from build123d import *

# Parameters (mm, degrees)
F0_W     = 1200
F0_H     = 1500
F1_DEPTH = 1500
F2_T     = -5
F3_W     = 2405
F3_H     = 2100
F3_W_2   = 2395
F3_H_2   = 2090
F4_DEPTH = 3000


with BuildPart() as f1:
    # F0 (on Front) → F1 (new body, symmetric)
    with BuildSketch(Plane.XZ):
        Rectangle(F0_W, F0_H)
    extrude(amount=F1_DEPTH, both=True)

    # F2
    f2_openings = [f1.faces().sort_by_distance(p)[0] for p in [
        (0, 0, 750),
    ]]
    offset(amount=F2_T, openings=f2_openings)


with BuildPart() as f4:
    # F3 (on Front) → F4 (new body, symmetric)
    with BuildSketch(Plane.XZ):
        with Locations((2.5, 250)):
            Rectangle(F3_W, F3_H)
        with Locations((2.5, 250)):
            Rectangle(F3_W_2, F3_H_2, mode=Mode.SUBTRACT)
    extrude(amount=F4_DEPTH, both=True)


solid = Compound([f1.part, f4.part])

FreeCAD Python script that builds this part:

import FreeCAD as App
import Part
import Sketcher

V = App.Vector
Q = App.Units.Quantity


def faces_at(feature, points):
    """Names of the faces that lie closest to the given points."""
    faces = feature.Shape.Faces
    near = lambda p: min(range(len(faces)), key=lambda i: faces[i].distToShape(Part.Vertex(*p))[0])
    return sorted({f"Face{near(p) + 1}" for p in points})

doc = App.newDocument("Part")
body = doc.addObject("PartDesign::Body", "Body")

# Sketch on XZ plane
sketch1 = doc.addObject("Sketcher::SketchObject", "Sketch")
body.addObject(sketch1)
sketch1.AttachmentSupport = (doc.XZ_Plane, [""])
sketch1.MapMode = "FlatFace"
sketch1.addGeometry(Part.LineSegment(V(-600, 750, 0), V(-600, -750, 0)), False)
sketch1.addGeometry(Part.LineSegment(V(-600, -750, 0), V(600, -750, 0)), False)
sketch1.addGeometry(Part.LineSegment(V(600, -750, 0), V(600, 750, 0)), False)
sketch1.addGeometry(Part.LineSegment(V(600, 750, 0), V(-600, 750, 0)), False)
sketch1.addConstraint(Sketcher.Constraint("Coincident", 0, 2, 1, 1))
sketch1.addConstraint(Sketcher.Constraint("Coincident", 1, 2, 2, 1))
sketch1.addConstraint(Sketcher.Constraint("Coincident", 2, 2, 3, 1))
sketch1.addConstraint(Sketcher.Constraint("Coincident", 3, 2, 0, 1))
sketch1.addConstraint(Sketcher.Constraint("Vertical", 0))
sketch1.addConstraint(Sketcher.Constraint("Horizontal", 1))
sketch1.addConstraint(Sketcher.Constraint("Vertical", 2))
sketch1.addConstraint(Sketcher.Constraint("Horizontal", 3))
sketch1.addConstraint(Sketcher.Constraint("Symmetric", 0, 2, 2, 2, -1, 1))
sketch1.addConstraint(Sketcher.Constraint("DistanceX", 1, 1, 1, 2, Q("1200 mm")))
sketch1.addConstraint(Sketcher.Constraint("DistanceY", 0, 2, 0, 1, Q("1500 mm")))
pad1 = doc.addObject("PartDesign::Pad", "Pad")
body.addObject(pad1)
pad1.Profile = sketch1
pad1.Length = 3000
pad1.Midplane = True
doc.recompute()

thickness = doc.addObject("PartDesign::Thickness", "Thickness")
body.addObject(thickness)
thickness.Base = (pad1, faces_at(pad1, [(0, 0, 750)]))
thickness.Value = 5
thickness.Reversed = True
thickness.Join = "Arc"
body2 = doc.addObject("PartDesign::Body", "Body001")

# Sketch on XZ plane
sketch2 = doc.addObject("Sketcher::SketchObject", "Sketch001")
body2.addObject(sketch2)
sketch2.AttachmentSupport = (doc.getObject("XZ_Plane001"), [""])
sketch2.MapMode = "FlatFace"
sketch2.addGeometry(Part.LineSegment(V(-1200, 1300, 0), V(-1200, -800, 0)), False)
sketch2.addGeometry(Part.LineSegment(V(-1200, -800, 0), V(1205, -800, 0)), False)
sketch2.addGeometry(Part.LineSegment(V(1205, -800, 0), V(1205, 1300, 0)), False)
sketch2.addGeometry(Part.LineSegment(V(1205, 1300, 0), V(-1200, 1300, 0)), False)
sketch2.addGeometry(Part.LineSegment(V(1200, -795, 0), V(-1195, -795, 0)), False)
sketch2.addGeometry(Part.LineSegment(V(-1195, -795, 0), V(-1195, 1295, 0)), False)
sketch2.addGeometry(Part.LineSegment(V(-1195, 1295, 0), V(1200, 1295, 0)), False)
sketch2.addGeometry(Part.LineSegment(V(1200, 1295, 0), V(1200, -795, 0)), False)
sketch2.addConstraint(Sketcher.Constraint("Coincident", 0, 2, 1, 1))
sketch2.addConstraint(Sketcher.Constraint("Coincident", 1, 2, 2, 1))
sketch2.addConstraint(Sketcher.Constraint("Coincident", 2, 2, 3, 1))
sketch2.addConstraint(Sketcher.Constraint("Coincident", 3, 2, 0, 1))
sketch2.addConstraint(Sketcher.Constraint("Coincident", 4, 2, 5, 1))
sketch2.addConstraint(Sketcher.Constraint("Coincident", 5, 2, 6, 1))
sketch2.addConstraint(Sketcher.Constraint("Coincident", 6, 2, 7, 1))
sketch2.addConstraint(Sketcher.Constraint("Coincident", 7, 2, 4, 1))
sketch2.addConstraint(Sketcher.Constraint("Vertical", 0))
sketch2.addConstraint(Sketcher.Constraint("Horizontal", 1))
sketch2.addConstraint(Sketcher.Constraint("Vertical", 2))
sketch2.addConstraint(Sketcher.Constraint("Horizontal", 3))
sketch2.addConstraint(Sketcher.Constraint("Horizontal", 4))
sketch2.addConstraint(Sketcher.Constraint("Vertical", 5))
sketch2.addConstraint(Sketcher.Constraint("Horizontal", 6))
sketch2.addConstraint(Sketcher.Constraint("Vertical", 7))
sketch2.addConstraint(Sketcher.Constraint("DistanceX", 1, 1, 1, 2, Q("2405 mm")))
sketch2.addConstraint(Sketcher.Constraint("DistanceX", 4, 2, 4, 1, Q("2395 mm")))
sketch2.addConstraint(Sketcher.Constraint("DistanceY", 0, 2, 0, 1, Q("2100 mm")))
sketch2.addConstraint(Sketcher.Constraint("DistanceY", 5, 1, 5, 2, Q("2090 mm")))
sketch2.addConstraint(Sketcher.Constraint("DistanceX", 0, 2, -1, 1, Q("1200 mm")))
sketch2.addConstraint(Sketcher.Constraint("DistanceY", 0, 2, -1, 1, Q("800 mm")))
sketch2.addConstraint(Sketcher.Constraint("DistanceX", 4, 2, -1, 1, Q("1195 mm")))
sketch2.addConstraint(Sketcher.Constraint("DistanceY", 4, 2, -1, 1, Q("795 mm")))
pad2 = doc.addObject("PartDesign::Pad", "Pad001")
body2.addObject(pad2)
pad2.Profile = sketch2
pad2.Length = 6000
pad2.Midplane = True

doc.recompute()
